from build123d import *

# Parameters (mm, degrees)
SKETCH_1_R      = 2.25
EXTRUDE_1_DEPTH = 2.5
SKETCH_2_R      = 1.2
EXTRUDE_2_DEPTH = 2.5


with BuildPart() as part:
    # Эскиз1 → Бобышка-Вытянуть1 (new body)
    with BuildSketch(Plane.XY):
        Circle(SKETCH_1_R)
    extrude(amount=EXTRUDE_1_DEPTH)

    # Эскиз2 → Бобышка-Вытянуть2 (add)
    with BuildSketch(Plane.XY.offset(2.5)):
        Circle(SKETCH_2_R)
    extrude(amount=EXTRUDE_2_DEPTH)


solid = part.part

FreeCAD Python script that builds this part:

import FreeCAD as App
import Part
import Sketcher

V = App.Vector

doc = App.newDocument("Part")
body = doc.addObject("PartDesign::Body", "Body")

sketch1 = body.newObject("Sketcher::SketchObject", "Sketch")
sketch1.AttachmentSupport = (doc.getObject("XY_Plane"), [""])
sketch1.MapMode = "FlatFace"
sketch1.addGeometry(Part.Circle(V(0, 0, 0), V(0, 0, 1), 2.2), False)
sketch1.addConstraint([
    Sketcher.Constraint("Coincident", 0, 3, -1, 1),
    Sketcher.Constraint("Diameter", 0, 4.5),
])
pad1 = body.newObject("PartDesign::Pad", "Pad")
pad1.Profile = sketch1
pad1.Length = 2.5

sketch2 = body.newObject("Sketcher::SketchObject", "Sketch001")
sketch2.AttachmentSupport = (doc.getObject("XY_Plane"), [""])
sketch2.MapMode = "FlatFace"
sketch2.AttachmentOffset = App.Placement(V(0, 0, 2.5), App.Rotation())
sketch2.addGeometry(Part.Circle(V(0, 0, 0), V(0, 0, 1), 1.2), False)
sketch2.addConstraint([
    Sketcher.Constraint("Coincident", 0, 3, -1, 1),
    Sketcher.Constraint("Diameter", 0, 2.4),
])
pad2 = body.newObject("PartDesign::Pad", "Pad001")
pad2.Profile = sketch2
pad2.Length = 2.5

doc.recompute()
